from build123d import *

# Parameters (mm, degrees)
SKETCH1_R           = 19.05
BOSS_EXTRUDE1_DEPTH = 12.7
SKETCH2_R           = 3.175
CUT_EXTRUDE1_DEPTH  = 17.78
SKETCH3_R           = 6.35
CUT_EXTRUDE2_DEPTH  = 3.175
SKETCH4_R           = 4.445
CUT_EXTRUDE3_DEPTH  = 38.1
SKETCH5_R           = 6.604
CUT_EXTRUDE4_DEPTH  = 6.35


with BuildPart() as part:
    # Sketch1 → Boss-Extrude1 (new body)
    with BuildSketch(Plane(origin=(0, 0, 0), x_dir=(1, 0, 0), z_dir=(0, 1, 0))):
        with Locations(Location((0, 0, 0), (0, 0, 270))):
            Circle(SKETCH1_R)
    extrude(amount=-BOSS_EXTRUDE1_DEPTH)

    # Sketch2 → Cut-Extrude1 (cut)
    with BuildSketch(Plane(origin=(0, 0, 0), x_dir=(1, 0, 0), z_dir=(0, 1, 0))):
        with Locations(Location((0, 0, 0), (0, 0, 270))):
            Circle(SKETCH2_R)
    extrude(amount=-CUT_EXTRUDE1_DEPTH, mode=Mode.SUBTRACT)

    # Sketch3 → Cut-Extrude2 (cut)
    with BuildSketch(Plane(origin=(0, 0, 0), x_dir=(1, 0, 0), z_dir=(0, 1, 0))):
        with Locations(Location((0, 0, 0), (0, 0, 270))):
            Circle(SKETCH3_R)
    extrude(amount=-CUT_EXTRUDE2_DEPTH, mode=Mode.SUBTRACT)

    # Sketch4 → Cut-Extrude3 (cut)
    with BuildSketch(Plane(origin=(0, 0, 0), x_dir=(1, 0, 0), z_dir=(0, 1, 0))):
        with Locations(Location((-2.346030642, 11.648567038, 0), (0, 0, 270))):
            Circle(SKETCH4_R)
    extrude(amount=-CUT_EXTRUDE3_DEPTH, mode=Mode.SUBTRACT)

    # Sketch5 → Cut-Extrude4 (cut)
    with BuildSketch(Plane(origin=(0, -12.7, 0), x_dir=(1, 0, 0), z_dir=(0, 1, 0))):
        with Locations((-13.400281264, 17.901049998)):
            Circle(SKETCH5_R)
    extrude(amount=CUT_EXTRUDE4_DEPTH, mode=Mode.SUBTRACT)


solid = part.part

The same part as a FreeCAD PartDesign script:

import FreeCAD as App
import Part
import Sketcher
Q = App.Units.Quantity

doc = App.newDocument("Part")
body = doc.addObject("PartDesign::Body", "Body")

# Sketch on XZ plane
sketch1 = body.newObject("Sketcher::SketchObject", "Sketch")
sketch1.AttachmentSupport = (doc.getObject("XZ_Plane"), [""])
sketch1.MapMode = "FlatFace"
sketch1.addGeometry(Part.Circle(App.Vector(0, 0, 0), App.Vector(0, 0, 1), 19), False)
sketch1.addConstraint([
    Sketcher.Constraint("Coincident", 0, 3, -1, 1),
    Sketcher.Constraint("Diameter", 0, Q("1.5 in")),
])
pad1 = body.newObject("PartDesign::Pad", "Pad")
pad1.Profile = sketch1
pad1.Length = Q("0.5 in")

# Sketch on XZ plane
sketch2 = body.newObject("Sketcher::SketchObject", "Sketch001")
sketch2.AttachmentSupport = (doc.getObject("XZ_Plane"), [""])
sketch2.MapMode = "FlatFace"
sketch2.addGeometry(Part.Circle(App.Vector(0, 0, 0), App.Vector(0, 0, 1), 3.2), False)
sketch2.addConstraint([
    Sketcher.Constraint("Coincident", 0, 3, -1, 1),
    Sketcher.Constraint("Diameter", 0, Q("0.25 in")),
])
pocket1 = body.newObject("PartDesign::Pocket", "Pocket")
pocket1.Profile = sketch2
pocket1.Length = Q("0.7 in")
pocket1.Reversed = True

# Sketch on XZ plane
sketch3 = body.newObject("Sketcher::SketchObject", "Sketch002")
sketch3.AttachmentSupport = (doc.getObject("XZ_Plane"), [""])
sketch3.MapMode = "FlatFace"
sketch3.addGeometry(Part.Circle(App.Vector(0, 0, 0), App.Vector(0, 0, 1), 6), False)
sketch3.addConstraint([
    Sketcher.Constraint("Coincident", 0, 3, -1, 1),
    Sketcher.Constraint("Diameter", 0, Q("0.5 in")),
])
pocket2 = body.newObject("PartDesign::Pocket", "Pocket001")
pocket2.Profile = sketch3
pocket2.Length = Q("0.125 in")
pocket2.Reversed = True

# Sketch on XZ plane
sketch4 = body.newObject("Sketcher::SketchObject", "Sketch003")
sketch4.AttachmentSupport = (doc.getObject("XZ_Plane"), [""])
sketch4.MapMode = "FlatFace"
sketch4.addGeometry(Part.Circle(App.Vector(-2.3, -11.6, 0), App.Vector(0, 0, 1), 4.4), False)
sketch4.addConstraint([
    Sketcher.Constraint("Diameter", 0, Q("0.35 in")),
    Sketcher.Constraint("DistanceX", 0, 3, -1, 1, 2.346031),
    Sketcher.Constraint("DistanceY", 0, 3, -1, 1, 11.648567),
])
pocket3 = body.newObject("PartDesign::Pocket", "Pocket002")
pocket3.Profile = sketch4
pocket3.Length = Q("1.5 in")
pocket3.Reversed = True

# Sketch on XZ plane
sketch5 = body.newObject("Sketcher::SketchObject", "Sketch004")
sketch5.AttachmentSupport = (doc.getObject("XZ_Plane"), [""])
sketch5.MapMode = "FlatFace"
sketch5.AttachmentOffset = App.Placement(App.Vector(0, 0, 0.5 * 25.4), App.Rotation())
sketch5.addGeometry(Part.Circle(App.Vector(-13, -18, 0), App.Vector(0, 0, 1), 7), False)
sketch5.addConstraint([
    Sketcher.Constraint("Diameter", 0, Q("0.52 in")),
    Sketcher.Constraint("DistanceX", 0, 3, -1, 1, 13.400281),
    Sketcher.Constraint("DistanceY", 0, 3, -1, 1, 17.90105),
])
pocket4 = body.newObject("PartDesign::Pocket", "Pocket003")
pocket4.Profile = sketch5
pocket4.Length = Q("0.25 in")

doc.recompute()
